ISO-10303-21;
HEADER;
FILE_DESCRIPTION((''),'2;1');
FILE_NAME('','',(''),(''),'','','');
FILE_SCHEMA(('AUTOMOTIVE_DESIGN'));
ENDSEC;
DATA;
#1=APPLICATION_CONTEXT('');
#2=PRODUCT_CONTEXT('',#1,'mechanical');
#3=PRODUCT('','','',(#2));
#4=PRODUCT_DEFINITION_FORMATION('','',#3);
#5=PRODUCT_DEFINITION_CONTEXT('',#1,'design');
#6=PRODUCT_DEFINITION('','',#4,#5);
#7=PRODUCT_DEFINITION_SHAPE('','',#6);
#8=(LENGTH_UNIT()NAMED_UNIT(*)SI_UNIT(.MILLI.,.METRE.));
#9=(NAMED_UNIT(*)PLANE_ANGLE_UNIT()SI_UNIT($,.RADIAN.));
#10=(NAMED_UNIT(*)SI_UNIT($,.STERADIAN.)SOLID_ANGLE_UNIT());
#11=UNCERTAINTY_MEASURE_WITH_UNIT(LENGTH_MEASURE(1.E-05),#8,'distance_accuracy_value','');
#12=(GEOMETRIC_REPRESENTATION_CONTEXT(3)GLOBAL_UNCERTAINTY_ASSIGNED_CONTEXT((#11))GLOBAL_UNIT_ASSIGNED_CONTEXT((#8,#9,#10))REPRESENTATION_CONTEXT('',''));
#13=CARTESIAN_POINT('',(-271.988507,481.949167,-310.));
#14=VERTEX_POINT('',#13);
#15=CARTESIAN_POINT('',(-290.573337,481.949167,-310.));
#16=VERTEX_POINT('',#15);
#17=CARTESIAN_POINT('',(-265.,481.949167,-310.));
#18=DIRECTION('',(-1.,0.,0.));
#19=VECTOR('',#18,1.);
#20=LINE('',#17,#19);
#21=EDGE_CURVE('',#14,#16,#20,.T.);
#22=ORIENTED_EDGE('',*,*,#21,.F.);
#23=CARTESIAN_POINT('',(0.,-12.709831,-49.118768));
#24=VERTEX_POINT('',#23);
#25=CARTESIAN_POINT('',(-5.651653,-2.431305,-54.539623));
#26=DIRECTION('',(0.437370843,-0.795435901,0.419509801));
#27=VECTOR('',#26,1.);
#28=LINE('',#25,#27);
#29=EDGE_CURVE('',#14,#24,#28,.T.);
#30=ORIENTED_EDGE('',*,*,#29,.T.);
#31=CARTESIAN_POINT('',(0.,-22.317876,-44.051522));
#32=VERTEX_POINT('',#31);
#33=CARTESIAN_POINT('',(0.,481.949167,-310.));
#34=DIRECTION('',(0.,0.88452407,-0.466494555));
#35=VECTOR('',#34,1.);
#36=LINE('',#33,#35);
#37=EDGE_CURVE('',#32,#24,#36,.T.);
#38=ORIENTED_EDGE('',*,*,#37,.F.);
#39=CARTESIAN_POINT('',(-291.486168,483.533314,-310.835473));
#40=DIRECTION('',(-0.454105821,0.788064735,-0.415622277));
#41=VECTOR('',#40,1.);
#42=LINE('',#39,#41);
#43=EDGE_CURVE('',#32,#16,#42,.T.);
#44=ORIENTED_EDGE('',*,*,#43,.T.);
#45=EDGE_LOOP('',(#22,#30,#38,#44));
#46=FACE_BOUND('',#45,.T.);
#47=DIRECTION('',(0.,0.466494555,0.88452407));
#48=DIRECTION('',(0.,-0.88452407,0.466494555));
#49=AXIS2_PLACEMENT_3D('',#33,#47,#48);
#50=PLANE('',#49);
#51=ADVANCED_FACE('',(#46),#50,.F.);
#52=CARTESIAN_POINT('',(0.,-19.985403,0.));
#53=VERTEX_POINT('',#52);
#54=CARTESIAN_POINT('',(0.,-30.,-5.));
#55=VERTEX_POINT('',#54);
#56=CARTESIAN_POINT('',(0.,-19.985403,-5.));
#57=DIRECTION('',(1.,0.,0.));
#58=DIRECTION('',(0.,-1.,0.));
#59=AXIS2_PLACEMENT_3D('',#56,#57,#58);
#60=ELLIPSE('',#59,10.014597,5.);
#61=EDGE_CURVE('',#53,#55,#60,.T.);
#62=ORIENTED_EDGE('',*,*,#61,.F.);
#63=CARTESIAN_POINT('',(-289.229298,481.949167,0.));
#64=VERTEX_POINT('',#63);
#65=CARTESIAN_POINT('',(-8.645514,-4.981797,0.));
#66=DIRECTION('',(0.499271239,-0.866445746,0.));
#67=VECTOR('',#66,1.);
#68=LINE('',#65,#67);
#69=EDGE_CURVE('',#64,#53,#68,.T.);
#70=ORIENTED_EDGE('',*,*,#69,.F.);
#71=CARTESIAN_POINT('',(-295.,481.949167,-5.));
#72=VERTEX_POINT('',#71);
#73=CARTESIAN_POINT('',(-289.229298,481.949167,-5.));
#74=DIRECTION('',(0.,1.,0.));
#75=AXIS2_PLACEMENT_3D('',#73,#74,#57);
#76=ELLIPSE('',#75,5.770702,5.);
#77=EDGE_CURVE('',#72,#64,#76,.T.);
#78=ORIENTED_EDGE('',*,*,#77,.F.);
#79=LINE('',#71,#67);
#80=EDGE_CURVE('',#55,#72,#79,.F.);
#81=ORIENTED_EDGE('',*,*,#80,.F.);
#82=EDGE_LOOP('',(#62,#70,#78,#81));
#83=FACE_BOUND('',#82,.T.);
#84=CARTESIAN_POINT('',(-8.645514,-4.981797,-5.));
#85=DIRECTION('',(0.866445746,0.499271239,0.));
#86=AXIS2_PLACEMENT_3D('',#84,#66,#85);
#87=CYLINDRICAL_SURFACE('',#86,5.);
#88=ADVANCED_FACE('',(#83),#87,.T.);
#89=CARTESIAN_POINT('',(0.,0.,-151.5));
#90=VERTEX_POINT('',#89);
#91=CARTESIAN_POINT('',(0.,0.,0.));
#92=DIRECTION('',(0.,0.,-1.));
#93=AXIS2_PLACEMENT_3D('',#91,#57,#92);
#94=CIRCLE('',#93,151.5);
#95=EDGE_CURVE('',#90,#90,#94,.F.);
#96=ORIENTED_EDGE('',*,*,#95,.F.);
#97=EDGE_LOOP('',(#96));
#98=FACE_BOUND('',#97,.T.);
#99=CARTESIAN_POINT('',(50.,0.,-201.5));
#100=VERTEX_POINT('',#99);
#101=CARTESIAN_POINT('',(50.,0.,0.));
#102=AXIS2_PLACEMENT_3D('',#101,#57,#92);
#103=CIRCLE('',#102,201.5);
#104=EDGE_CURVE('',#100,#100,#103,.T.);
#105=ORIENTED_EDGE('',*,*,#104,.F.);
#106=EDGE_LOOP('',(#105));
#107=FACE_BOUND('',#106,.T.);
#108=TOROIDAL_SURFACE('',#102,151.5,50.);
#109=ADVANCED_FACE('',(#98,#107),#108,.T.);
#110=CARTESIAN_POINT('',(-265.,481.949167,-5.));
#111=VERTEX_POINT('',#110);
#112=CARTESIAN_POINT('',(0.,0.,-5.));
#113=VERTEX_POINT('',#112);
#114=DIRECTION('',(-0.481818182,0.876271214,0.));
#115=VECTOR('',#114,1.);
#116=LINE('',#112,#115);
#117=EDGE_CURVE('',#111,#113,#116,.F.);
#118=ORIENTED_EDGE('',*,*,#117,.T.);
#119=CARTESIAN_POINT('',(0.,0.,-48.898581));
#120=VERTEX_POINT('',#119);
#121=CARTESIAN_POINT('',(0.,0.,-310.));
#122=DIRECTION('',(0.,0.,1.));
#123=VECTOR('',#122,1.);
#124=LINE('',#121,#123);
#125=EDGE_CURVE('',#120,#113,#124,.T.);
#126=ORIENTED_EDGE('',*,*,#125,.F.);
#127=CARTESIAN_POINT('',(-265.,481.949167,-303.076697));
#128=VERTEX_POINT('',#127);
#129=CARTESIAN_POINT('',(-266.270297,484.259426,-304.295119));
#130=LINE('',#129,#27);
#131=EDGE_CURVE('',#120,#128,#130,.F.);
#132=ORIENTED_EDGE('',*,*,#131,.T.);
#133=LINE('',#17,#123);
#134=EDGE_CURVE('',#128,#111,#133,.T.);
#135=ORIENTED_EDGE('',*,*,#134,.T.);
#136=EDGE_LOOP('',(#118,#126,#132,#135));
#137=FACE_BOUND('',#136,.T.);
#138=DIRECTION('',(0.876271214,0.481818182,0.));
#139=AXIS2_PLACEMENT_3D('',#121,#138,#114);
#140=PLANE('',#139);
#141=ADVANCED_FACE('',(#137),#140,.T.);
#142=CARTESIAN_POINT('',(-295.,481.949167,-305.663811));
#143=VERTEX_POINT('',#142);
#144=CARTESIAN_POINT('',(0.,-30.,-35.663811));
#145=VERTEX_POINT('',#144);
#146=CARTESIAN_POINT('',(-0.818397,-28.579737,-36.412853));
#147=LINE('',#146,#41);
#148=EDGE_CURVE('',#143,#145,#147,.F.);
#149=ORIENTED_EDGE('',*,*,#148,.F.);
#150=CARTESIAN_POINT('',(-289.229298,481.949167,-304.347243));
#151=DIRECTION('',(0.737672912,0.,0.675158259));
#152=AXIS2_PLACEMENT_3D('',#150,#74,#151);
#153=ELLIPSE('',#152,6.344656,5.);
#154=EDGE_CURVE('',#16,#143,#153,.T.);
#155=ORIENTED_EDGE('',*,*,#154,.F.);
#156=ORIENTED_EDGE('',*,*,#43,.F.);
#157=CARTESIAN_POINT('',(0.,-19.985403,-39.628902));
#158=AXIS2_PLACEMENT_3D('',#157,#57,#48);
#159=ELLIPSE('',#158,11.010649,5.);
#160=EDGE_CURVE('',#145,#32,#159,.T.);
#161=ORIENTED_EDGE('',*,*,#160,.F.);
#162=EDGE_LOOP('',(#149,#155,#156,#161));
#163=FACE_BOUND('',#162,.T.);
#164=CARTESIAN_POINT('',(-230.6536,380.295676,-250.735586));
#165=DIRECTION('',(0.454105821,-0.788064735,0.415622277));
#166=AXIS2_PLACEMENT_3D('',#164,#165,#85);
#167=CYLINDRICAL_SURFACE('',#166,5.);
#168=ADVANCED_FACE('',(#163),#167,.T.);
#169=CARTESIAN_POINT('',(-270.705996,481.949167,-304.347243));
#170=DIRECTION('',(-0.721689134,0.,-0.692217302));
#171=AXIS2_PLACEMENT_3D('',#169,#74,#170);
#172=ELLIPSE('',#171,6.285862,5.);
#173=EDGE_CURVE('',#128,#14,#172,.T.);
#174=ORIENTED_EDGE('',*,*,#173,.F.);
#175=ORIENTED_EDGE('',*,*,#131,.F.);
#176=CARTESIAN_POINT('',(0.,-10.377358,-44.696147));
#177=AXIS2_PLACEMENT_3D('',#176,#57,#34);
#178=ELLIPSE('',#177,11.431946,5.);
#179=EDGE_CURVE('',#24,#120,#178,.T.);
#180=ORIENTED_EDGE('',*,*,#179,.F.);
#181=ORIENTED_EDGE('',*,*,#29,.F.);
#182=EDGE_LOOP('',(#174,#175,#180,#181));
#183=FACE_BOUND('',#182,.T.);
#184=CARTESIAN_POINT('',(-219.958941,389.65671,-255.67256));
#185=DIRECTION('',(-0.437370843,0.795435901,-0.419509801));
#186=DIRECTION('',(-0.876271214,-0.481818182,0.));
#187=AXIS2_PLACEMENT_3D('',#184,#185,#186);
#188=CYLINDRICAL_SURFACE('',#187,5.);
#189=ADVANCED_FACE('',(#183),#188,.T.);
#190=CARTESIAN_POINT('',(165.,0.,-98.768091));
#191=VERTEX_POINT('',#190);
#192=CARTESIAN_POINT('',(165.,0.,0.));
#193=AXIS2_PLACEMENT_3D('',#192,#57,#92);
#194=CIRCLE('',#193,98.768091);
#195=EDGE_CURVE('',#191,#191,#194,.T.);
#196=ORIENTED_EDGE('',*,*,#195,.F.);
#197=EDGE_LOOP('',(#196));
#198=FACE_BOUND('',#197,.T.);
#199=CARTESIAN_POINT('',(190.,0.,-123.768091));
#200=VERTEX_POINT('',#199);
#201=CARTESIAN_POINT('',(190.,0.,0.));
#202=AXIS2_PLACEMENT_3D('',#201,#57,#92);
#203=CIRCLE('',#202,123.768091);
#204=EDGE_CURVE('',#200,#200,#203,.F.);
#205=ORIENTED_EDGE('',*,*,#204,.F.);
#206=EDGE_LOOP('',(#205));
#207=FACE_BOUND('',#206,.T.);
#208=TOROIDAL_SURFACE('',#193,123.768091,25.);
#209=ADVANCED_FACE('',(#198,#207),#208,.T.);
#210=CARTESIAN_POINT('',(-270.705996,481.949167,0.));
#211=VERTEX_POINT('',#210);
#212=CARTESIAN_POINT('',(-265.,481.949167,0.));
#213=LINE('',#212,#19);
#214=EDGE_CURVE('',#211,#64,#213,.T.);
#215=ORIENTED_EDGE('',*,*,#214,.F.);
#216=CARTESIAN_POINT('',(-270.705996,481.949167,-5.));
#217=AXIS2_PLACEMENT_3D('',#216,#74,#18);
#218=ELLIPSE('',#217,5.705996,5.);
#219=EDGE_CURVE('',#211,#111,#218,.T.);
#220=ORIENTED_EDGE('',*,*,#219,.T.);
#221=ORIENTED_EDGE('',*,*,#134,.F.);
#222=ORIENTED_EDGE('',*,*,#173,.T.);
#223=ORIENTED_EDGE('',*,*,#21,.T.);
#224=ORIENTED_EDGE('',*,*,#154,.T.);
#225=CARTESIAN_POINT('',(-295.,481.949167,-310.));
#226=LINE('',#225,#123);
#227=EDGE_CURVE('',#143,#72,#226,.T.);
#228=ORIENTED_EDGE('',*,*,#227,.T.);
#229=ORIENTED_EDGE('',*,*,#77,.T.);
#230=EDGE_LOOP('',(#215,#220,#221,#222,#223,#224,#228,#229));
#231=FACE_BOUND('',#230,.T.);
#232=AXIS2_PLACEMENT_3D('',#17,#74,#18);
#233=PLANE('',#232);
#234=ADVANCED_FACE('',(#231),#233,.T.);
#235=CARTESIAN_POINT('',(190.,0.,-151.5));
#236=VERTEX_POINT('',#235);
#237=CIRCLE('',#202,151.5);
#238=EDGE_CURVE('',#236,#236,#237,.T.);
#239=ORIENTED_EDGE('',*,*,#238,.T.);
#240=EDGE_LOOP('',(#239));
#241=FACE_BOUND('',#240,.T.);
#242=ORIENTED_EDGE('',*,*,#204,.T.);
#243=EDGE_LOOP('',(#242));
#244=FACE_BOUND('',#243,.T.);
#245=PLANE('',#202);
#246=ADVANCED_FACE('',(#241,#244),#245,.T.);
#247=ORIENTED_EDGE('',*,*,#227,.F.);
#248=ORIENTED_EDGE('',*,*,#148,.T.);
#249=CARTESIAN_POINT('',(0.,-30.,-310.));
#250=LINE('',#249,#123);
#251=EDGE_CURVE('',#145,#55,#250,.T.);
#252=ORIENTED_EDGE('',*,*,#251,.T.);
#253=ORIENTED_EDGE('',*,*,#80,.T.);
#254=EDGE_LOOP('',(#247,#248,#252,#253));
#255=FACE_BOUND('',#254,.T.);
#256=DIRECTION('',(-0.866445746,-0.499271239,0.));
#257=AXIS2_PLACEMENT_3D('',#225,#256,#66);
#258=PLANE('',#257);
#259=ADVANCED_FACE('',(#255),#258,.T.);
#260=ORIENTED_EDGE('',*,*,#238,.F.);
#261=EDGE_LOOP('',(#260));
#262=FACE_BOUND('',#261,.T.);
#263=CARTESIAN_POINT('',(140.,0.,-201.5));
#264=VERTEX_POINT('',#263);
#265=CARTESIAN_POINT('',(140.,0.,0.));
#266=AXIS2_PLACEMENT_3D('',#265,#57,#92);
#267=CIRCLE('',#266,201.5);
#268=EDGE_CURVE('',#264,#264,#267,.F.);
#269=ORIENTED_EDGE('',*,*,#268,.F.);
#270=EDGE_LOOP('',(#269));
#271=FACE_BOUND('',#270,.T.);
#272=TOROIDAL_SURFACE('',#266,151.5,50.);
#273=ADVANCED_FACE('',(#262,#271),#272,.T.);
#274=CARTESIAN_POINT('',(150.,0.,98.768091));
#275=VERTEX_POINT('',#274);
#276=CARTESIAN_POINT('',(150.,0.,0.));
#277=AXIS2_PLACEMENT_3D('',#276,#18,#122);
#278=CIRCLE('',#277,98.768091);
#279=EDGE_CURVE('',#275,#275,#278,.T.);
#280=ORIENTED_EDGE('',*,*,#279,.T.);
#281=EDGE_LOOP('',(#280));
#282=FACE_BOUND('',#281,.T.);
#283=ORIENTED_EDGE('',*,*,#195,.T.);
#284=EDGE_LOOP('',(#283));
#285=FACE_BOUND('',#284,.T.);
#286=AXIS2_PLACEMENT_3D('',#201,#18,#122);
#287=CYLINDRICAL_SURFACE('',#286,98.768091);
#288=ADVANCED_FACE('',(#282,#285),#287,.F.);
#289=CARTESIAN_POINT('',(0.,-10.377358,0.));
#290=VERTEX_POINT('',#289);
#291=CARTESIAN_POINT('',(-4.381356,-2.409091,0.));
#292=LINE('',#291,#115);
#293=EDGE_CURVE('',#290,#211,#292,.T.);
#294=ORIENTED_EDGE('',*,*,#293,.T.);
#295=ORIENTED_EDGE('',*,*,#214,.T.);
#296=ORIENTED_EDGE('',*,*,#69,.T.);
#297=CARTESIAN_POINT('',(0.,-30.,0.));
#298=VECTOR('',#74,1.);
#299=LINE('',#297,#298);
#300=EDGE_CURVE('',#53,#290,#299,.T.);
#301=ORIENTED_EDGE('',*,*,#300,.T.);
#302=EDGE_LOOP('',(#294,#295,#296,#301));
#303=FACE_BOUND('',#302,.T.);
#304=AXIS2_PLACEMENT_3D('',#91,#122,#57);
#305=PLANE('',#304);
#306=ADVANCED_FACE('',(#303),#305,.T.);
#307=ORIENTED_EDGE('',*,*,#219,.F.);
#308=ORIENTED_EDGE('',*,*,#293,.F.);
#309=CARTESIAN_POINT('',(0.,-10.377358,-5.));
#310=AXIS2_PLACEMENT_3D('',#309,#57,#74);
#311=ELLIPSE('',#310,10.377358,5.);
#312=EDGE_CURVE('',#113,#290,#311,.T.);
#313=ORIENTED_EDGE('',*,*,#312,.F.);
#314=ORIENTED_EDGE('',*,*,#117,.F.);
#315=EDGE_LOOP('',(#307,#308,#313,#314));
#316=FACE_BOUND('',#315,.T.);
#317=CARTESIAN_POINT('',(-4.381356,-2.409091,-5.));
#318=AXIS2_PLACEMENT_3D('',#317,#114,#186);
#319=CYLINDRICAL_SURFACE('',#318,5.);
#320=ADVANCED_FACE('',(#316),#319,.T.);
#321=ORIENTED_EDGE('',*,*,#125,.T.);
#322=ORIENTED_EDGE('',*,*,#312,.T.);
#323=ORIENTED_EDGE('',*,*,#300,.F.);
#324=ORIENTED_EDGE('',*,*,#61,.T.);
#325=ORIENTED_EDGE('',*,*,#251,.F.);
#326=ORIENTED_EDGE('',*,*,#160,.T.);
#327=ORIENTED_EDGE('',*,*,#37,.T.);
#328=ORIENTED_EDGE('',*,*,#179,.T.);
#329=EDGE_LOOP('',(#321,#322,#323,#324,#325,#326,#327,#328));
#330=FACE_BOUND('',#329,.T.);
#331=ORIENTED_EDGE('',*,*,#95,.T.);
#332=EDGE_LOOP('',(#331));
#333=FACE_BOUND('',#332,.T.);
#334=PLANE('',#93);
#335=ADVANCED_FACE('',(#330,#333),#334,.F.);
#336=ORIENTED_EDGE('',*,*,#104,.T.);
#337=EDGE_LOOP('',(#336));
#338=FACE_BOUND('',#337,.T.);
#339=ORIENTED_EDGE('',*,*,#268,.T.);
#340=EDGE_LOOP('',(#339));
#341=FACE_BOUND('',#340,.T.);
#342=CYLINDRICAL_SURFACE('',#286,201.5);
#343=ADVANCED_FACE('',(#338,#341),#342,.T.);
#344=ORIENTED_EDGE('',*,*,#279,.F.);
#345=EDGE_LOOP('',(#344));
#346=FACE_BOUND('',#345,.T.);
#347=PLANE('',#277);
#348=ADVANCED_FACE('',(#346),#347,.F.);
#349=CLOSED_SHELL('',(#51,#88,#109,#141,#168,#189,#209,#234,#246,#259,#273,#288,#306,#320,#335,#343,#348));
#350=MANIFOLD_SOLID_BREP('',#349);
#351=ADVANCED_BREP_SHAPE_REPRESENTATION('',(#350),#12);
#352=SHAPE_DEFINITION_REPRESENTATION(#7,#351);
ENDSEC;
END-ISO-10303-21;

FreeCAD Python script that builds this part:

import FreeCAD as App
import Part
import Sketcher


def edges_at(feature, points):
    """Names of the edges that pass closest to the given points."""
    edges = feature.Shape.Edges
    near = lambda p: min(range(len(edges)), key=lambda i: edges[i].distToShape(Part.Vertex(*p))[0])
    return sorted({f"Edge{near(p) + 1}" for p in points})

doc = App.newDocument("Part")
params = doc.addObject("Spreadsheet::Sheet", "Params")
for row, (alias, value) in enumerate([
    ("sketch1_diameter", "403 mm"),
    ("pad1_length", "190 mm"),
    ("pad2_length", "150 mm"),
    ("fillet_radius", "50 mm"),
    ("fillet2_radius", "25 mm"),
    ("sketch3_width", "30 mm"),
    ("sketch3_length", "550 mm"),
    ("pad3_length", "310 mm"),
    ("sketch4_height", "270 mm"),
    ("pocket1_length", "300 mm"),
    ("fillet3_radius", "5 mm"),
], start=1):
    params.set(f"A{row}", alias)
    params.set(f"B{row}", "=" + value)
    params.setAlias(f"B{row}", alias)

body = doc.addObject("PartDesign::Body", "Body")

# Sketch on YZ plane
sketch1 = doc.addObject("Sketcher::SketchObject", "Sketch")
body.addObject(sketch1)
sketch1.AttachmentSupport = (doc.YZ_Plane, [""])
sketch1.MapMode = "FlatFace"
sketch1.addGeometry([
    Part.Circle(App.Vector(0, 0, 0), App.Vector(0, 0, 1), 201.5),
    Part.Circle(App.Vector(0, 0, 0), App.Vector(0, 0, 1), 98.768091),
], False)
sketch1.addConstraint([
    Sketcher.Constraint("Coincident", 0, 3, -1, 1),
    Sketcher.Constraint("Coincident", 1, 3, -1, 1),
    Sketcher.Constraint("Diameter", 0, 403.0),
    Sketcher.Constraint("Diameter", 1, 197.536183),
])
sketch1.setExpression("Constraints[2]", "Params.sketch1_diameter")
pad1 = doc.addObject("PartDesign::Pad", "Pad")
body.addObject(pad1)
pad1.Profile = sketch1
pad1.setExpression("Length", "Params.pad1_length")

# Sketch on YZ plane
sketch2 = doc.addObject("Sketcher::SketchObject", "Sketch001")
body.addObject(sketch2)
sketch2.AttachmentSupport = (doc.YZ_Plane, [""])
sketch2.MapMode = "FlatFace"
sketch2.addGeometry(Part.Circle(App.Vector(0, 0, 0), App.Vector(0, 0, 1), 98.768091), False)
sketch2.addConstraint([
    Sketcher.Constraint("Coincident", 0, 3, -1, 1),
    Sketcher.Constraint("Diameter", 0, 197.536183),
])
pad2 = doc.addObject("PartDesign::Pad", "Pad001")
body.addObject(pad2)
pad2.Profile = sketch2
pad2.setExpression("Length", "Params.pad2_length")
doc.recompute()

fillet = doc.addObject("PartDesign::Fillet", "Fillet")
body.addObject(fillet)
fillet.Base = (pad2, edges_at(pad2, [(0, 0, 201.5), (190, 0, 201.5)]))
fillet.setExpression("Radius", "Params.fillet_radius")
doc.recompute()

fillet2 = doc.addObject("PartDesign::Fillet", "Fillet001")
body.addObject(fillet2)
fillet2.Base = (fillet, edges_at(fillet, [(190, 0, 98.768)]))
fillet2.setExpression("Radius", "Params.fillet2_radius")

# Sketch on XY plane
sketch3 = doc.addObject("Sketcher::SketchObject", "Sketch002")
body.addObject(sketch3)
sketch3.AttachmentSupport = (doc.XY_Plane, [""])
sketch3.MapMode = "FlatFace"
sketch3.addGeometry([
    Part.LineSegment(App.Vector(0, 0, 0), App.Vector(-265, 481.949167, 0)),
    Part.LineSegment(App.Vector(-265, 481.949167, 0), App.Vector(-295, 481.949167, 0)),
    Part.LineSegment(App.Vector(-295, 481.949167, 0), App.Vector(0, -30, 0)),
    Part.LineSegment(App.Vector(0, -30, 0), App.Vector(0, 0, 0)),
], False)
sketch3.addConstraint([
    Sketcher.Constraint("Coincident", 0, 2, 1, 1),
    Sketcher.Constraint("Coincident", 1, 2, 2, 1),
    Sketcher.Constraint("Coincident", 2, 2, 3, 1),
    Sketcher.Constraint("Coincident", 3, 2, 0, 1),
    Sketcher.Constraint("Horizontal", 1),
    Sketcher.Constraint("Vertical", 3),
    Sketcher.Constraint("Coincident", 3, 2, -1, 1),
    Sketcher.Constraint("Equal", 1, 3),
    Sketcher.Constraint("DistanceX", 1, 2, 1, 1, 30.0),
    Sketcher.Constraint("Distance", 0, 550.0),
    Sketcher.Constraint("DistanceX", 0, 2, -1, 1, 265.0),
])
sketch3.setExpression("Constraints[8]", "Params.sketch3_width")
sketch3.setExpression("Constraints[9]", "Params.sketch3_length")
pad3 = doc.addObject("PartDesign::Pad", "Pad002")
body.addObject(pad3)
pad3.Profile = sketch3
pad3.setExpression("Length", "Params.pad3_length")
pad3.Reversed = True

# Sketch on YZ plane
sketch4 = doc.addObject("Sketcher::SketchObject", "Sketch003")
body.addObject(sketch4)
sketch4.AttachmentSupport = (doc.YZ_Plane, [""])
sketch4.MapMode = "FlatFace"
sketch4.AttachmentOffset = App.Placement(App.Vector(0, 0, -300), App.Rotation())
sketch4.addGeometry([
    Part.LineSegment(App.Vector(-30, -40, 0), App.Vector(481.949167, -310, 0)),
    Part.LineSegment(App.Vector(481.949167, -310, 0), App.Vector(-30, -310, 0)),
    Part.LineSegment(App.Vector(-30, -310, 0), App.Vector(-30, -40, 0)),
], False)
sketch4.addConstraint([
    Sketcher.Constraint("Coincident", 0, 2, 1, 1),
    Sketcher.Constraint("Coincident", 1, 2, 2, 1),
    Sketcher.Constraint("Coincident", 2, 2, 0, 1),
    Sketcher.Constraint("Horizontal", 1),
    Sketcher.Constraint("Vertical", 2),
    Sketcher.Constraint("DistanceY", 2, 1, 2, 2, 270.0),
    Sketcher.Constraint("DistanceY", 0, 2, -1, 1, 310.0),
    Sketcher.Constraint("DistanceX", 1, 2, -1, 1, 30.0),
    Sketcher.Constraint("Distance", 0, 578.784891),
])
sketch4.setExpression("Constraints[5]", "Params.sketch4_height")
pocket1 = doc.addObject("PartDesign::Pocket", "Pocket")
body.addObject(pocket1)
pocket1.Profile = sketch4
pocket1.setExpression("Length", "Params.pocket1_length")
pocket1.Reversed = True
doc.recompute()

fillet3 = doc.addObject("PartDesign::Fillet", "Fillet002")
body.addObject(fillet3)
fillet3.Base = (pocket1, edges_at(pocket1, [
    (-132.5, 240.975, 0),
    (-147.5, 225.975, 0),
    (-147.5, 225.975, -175),
    (-132.5, 240.975, -182.911),
]))
fillet3.setExpression("Radius", "Params.fillet3_radius")

doc.recompute()
